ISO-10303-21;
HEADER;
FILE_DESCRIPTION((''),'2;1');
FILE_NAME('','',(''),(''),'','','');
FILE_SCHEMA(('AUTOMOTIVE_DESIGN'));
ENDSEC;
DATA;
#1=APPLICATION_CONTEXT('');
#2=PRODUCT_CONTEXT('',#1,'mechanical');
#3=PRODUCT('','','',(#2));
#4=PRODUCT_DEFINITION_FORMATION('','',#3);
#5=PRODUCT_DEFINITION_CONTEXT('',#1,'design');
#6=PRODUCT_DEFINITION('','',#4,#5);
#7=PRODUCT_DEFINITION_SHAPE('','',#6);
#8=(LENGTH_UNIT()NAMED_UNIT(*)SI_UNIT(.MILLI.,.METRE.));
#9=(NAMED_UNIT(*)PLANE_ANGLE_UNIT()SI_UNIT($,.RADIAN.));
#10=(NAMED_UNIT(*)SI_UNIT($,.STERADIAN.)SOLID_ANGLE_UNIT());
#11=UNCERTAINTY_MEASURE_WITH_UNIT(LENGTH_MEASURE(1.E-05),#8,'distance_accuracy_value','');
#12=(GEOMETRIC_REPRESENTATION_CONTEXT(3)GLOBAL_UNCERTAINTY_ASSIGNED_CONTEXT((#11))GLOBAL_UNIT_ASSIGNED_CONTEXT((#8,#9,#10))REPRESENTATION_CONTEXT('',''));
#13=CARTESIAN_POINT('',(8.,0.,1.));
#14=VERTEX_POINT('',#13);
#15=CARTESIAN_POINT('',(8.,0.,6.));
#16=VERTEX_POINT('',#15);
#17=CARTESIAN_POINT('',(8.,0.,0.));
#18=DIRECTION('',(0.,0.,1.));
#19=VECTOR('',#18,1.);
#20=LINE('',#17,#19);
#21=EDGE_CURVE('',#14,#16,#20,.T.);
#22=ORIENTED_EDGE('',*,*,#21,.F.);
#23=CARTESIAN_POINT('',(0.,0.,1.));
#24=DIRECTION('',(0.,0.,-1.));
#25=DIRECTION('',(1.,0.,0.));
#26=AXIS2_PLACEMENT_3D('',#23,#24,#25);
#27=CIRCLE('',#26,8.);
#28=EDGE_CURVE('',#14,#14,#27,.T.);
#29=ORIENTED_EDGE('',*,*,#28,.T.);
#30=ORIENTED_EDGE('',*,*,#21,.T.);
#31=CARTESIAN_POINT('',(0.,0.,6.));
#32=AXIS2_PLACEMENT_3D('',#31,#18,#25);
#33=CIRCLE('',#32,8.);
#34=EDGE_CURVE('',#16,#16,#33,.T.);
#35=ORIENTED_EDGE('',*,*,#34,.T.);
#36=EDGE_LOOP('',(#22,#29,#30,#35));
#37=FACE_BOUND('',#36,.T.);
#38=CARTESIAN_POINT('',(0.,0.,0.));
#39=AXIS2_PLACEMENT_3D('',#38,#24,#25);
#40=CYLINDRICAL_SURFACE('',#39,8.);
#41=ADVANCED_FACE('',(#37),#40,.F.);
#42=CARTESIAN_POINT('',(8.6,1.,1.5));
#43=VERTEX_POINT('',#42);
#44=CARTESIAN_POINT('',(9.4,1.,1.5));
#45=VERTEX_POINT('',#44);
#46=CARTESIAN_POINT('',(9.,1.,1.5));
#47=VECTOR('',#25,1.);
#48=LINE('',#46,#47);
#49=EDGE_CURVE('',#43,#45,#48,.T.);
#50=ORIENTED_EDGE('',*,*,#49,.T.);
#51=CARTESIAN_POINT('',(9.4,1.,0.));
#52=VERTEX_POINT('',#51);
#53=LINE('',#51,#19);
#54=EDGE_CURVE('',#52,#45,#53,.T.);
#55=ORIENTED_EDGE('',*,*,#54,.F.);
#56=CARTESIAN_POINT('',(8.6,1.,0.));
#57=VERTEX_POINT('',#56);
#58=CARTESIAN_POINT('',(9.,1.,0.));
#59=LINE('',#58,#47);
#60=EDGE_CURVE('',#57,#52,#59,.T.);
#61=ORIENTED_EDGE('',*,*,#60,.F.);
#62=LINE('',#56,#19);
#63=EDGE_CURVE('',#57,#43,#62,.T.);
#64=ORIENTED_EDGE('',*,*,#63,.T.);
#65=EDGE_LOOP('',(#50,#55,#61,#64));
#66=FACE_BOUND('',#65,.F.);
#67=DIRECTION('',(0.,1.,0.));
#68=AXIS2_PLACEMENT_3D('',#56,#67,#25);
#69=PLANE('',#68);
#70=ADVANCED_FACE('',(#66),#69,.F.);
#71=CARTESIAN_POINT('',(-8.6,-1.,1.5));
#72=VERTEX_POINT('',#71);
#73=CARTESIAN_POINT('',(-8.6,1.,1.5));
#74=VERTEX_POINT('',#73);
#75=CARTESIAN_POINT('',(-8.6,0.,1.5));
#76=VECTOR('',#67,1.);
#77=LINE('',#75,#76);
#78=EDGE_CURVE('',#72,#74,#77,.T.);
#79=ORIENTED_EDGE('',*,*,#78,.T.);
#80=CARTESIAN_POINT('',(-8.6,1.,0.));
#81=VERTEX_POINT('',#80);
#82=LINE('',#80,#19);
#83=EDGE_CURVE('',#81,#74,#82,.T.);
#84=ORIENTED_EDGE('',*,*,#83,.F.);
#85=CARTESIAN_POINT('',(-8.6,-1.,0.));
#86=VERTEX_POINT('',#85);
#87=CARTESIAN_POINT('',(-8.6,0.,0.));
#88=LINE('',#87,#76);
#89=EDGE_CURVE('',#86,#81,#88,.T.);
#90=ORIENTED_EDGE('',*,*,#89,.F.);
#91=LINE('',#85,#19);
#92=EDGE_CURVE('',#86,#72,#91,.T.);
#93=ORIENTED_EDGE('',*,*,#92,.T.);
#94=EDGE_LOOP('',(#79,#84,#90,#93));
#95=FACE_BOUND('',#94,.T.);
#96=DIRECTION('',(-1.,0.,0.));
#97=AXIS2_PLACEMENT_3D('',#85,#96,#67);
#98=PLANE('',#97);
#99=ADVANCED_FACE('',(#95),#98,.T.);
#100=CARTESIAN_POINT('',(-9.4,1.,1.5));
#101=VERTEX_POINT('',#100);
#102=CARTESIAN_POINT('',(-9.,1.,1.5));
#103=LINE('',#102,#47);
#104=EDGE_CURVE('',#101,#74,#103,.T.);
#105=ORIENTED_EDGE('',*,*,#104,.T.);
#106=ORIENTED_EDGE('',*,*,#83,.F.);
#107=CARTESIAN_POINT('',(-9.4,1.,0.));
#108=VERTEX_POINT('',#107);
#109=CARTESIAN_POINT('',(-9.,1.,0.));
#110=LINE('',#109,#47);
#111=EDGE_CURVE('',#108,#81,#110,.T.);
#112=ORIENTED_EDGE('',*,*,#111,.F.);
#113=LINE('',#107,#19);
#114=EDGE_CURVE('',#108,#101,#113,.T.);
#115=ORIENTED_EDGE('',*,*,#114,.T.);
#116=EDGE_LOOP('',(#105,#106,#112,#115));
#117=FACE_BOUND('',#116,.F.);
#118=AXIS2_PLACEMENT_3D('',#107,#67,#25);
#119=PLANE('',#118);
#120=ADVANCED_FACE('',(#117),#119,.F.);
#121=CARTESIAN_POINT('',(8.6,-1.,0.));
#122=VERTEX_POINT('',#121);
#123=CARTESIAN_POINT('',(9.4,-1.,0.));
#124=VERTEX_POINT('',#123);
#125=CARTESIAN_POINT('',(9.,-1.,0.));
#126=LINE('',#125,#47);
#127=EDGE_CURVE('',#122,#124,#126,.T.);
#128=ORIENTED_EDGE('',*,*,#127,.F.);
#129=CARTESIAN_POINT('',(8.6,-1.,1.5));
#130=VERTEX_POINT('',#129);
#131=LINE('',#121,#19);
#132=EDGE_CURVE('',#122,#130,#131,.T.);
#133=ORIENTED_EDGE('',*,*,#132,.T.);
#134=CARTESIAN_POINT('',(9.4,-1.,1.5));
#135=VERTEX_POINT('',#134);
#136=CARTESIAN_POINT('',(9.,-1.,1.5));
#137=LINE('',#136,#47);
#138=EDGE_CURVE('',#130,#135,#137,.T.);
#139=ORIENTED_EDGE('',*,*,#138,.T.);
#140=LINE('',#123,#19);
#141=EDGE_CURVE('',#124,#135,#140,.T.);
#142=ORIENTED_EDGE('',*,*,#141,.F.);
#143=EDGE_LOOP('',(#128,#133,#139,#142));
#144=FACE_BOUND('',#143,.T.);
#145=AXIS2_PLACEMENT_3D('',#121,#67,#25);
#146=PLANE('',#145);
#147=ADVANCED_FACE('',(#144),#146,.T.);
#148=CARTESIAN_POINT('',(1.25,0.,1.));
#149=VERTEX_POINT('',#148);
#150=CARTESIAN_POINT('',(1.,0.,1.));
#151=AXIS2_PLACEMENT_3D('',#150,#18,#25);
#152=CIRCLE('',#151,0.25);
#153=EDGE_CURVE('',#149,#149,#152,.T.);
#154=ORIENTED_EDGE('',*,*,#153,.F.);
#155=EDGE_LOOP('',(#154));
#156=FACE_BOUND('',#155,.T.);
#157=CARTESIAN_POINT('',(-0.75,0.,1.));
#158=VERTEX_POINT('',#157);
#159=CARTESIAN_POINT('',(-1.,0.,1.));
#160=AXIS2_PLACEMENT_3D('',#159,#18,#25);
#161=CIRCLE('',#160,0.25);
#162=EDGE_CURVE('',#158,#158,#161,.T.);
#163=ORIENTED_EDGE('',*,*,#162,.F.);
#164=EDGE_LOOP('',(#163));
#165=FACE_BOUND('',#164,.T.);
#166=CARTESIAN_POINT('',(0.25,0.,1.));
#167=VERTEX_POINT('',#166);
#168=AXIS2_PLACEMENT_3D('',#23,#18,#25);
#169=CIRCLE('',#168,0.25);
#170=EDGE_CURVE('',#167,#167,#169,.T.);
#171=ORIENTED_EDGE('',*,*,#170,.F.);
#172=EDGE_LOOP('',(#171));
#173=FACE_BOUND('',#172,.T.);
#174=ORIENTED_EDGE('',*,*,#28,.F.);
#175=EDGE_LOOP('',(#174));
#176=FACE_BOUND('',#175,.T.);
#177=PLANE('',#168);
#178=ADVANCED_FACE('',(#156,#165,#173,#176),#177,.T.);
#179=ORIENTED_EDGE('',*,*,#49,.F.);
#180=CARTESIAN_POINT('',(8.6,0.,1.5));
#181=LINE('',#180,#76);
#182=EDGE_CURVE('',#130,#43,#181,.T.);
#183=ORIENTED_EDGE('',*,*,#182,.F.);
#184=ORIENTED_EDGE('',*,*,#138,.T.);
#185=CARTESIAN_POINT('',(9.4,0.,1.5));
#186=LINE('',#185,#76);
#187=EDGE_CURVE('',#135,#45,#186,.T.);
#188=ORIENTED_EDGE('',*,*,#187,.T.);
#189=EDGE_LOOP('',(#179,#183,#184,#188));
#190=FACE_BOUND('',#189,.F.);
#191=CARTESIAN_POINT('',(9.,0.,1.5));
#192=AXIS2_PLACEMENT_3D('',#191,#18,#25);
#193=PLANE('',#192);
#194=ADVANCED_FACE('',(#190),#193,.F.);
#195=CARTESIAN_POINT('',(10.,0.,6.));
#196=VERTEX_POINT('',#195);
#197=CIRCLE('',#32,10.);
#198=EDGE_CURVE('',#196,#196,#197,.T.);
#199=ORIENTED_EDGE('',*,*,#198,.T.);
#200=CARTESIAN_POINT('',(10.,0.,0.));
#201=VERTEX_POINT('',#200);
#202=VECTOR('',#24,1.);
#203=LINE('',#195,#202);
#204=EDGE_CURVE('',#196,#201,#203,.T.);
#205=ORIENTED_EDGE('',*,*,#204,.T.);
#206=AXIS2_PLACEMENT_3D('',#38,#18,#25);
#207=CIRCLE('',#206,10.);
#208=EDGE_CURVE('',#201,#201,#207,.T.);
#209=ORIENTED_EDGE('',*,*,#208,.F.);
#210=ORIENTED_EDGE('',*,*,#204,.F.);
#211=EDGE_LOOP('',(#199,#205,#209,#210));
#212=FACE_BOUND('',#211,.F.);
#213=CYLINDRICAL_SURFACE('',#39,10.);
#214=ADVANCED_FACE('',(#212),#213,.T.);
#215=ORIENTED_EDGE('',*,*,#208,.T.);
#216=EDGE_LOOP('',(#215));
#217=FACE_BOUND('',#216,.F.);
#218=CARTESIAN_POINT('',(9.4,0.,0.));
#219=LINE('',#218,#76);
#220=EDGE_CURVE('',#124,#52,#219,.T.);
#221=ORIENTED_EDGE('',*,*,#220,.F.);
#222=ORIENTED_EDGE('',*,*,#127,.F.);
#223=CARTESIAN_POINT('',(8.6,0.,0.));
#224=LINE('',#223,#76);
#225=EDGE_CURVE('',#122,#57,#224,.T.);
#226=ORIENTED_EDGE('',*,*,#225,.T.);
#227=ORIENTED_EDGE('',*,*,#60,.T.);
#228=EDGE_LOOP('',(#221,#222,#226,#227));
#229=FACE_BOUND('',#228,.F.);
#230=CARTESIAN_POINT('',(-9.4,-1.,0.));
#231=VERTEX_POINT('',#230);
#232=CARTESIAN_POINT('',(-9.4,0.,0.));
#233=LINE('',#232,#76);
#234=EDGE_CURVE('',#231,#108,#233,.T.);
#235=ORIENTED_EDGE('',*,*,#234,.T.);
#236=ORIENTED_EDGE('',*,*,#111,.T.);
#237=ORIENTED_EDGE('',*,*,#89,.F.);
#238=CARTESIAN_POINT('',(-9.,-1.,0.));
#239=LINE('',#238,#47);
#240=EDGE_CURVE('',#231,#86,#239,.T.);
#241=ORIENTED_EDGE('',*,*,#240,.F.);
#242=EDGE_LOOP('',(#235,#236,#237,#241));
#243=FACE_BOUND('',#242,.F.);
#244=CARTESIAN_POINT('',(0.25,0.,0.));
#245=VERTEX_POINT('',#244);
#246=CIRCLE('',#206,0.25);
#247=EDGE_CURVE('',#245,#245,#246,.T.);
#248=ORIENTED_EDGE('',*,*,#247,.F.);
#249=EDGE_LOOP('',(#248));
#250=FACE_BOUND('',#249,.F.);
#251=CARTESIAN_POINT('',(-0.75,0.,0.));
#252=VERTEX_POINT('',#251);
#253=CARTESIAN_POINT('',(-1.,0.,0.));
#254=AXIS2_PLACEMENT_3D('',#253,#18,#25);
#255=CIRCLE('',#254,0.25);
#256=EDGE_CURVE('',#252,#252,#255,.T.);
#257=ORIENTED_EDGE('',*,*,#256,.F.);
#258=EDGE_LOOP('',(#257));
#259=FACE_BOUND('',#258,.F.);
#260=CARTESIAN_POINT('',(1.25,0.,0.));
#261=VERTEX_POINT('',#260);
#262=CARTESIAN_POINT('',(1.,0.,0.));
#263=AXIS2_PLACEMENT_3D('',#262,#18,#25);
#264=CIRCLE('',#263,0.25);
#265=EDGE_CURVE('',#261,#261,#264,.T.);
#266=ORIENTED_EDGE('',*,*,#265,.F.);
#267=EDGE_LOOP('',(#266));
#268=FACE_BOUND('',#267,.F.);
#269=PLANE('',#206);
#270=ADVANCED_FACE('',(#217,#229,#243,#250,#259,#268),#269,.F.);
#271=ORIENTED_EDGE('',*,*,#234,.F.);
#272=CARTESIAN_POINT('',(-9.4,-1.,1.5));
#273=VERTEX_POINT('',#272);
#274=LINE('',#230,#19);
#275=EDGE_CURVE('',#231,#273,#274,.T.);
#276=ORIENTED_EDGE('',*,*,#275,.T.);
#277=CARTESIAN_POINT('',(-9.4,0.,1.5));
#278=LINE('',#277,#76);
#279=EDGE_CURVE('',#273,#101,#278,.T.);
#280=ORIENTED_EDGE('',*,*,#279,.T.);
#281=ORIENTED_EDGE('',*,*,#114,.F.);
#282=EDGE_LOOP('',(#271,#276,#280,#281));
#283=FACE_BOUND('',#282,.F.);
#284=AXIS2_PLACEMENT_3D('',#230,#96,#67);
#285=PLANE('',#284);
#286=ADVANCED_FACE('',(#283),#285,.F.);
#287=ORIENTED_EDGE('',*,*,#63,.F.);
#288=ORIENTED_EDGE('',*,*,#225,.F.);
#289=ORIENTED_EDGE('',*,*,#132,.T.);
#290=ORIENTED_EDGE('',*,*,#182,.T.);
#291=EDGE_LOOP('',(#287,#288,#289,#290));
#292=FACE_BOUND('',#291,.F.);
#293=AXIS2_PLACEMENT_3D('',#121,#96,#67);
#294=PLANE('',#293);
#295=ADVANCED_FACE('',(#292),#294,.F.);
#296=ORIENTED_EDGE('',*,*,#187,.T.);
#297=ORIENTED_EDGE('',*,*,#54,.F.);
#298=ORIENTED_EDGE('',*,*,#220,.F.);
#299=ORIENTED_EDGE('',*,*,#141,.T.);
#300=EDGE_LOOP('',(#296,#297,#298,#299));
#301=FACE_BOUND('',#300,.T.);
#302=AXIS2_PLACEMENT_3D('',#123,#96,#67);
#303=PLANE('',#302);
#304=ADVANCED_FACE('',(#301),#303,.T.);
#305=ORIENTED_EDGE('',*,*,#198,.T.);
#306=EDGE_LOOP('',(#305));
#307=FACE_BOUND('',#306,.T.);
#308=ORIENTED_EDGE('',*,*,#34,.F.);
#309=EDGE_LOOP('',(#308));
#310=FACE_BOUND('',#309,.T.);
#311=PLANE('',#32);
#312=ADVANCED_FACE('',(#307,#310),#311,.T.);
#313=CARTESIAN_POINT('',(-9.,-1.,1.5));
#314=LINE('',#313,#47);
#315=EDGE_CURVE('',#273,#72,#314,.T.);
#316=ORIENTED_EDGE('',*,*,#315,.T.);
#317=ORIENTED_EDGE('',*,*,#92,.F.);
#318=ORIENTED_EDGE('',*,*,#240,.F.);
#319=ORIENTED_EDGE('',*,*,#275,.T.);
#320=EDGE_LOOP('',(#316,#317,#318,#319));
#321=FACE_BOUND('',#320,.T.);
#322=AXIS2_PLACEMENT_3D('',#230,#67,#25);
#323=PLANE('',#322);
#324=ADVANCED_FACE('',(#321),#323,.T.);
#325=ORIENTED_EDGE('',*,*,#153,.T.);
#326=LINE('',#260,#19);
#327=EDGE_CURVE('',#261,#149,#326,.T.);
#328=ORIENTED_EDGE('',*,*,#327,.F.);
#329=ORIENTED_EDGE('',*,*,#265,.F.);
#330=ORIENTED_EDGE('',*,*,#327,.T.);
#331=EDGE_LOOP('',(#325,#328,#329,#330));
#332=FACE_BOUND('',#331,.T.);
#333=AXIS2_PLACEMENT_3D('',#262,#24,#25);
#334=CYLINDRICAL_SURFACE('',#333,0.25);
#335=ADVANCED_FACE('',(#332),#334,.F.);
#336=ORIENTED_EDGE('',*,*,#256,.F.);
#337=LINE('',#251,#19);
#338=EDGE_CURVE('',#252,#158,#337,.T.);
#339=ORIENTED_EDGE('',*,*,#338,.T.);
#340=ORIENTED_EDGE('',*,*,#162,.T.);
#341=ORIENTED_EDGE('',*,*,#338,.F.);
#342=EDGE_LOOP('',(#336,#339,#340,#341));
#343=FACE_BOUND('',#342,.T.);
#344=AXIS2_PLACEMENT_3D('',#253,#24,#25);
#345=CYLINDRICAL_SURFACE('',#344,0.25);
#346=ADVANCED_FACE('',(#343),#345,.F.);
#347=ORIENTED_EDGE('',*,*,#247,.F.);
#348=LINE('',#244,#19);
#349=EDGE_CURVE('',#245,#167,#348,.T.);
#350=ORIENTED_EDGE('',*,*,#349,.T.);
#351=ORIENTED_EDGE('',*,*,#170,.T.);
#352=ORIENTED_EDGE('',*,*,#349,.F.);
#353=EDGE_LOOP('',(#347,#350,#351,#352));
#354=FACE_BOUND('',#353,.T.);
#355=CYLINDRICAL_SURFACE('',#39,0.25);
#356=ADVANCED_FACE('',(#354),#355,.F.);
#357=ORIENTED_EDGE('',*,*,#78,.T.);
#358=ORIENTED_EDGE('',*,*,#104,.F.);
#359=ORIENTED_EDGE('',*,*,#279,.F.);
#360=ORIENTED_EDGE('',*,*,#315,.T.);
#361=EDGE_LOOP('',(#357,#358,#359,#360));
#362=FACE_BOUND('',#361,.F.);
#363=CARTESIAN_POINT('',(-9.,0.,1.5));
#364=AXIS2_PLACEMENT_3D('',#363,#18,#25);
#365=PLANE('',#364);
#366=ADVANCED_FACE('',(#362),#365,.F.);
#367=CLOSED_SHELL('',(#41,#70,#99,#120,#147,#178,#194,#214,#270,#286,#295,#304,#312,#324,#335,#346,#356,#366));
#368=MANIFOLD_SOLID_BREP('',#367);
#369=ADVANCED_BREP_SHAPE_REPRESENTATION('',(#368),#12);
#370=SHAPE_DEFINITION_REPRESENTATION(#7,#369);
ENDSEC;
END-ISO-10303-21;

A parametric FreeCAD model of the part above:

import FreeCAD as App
import Part
import Sketcher
Q = App.Units.Quantity


def add_polygon(sketch, points):
    """Adds a closed chain of lines whose ends are joined by coincident constraints."""
    first, n = sketch.GeometryCount, len(points)
    for a, b in zip(points, points[1:] + points[:1]):
        sketch.addGeometry(Part.LineSegment(App.Vector(*a, 0), App.Vector(*b, 0)), False)
    for i in range(n):
        sketch.addConstraint(Sketcher.Constraint("Coincident", first + i, 2, first + (i + 1) % n, 1))

doc = App.newDocument("Part")
params = doc.addObject("Spreadsheet::Sheet", "Params")
for row, (alias, value) in enumerate([
    ("sketch1_diameter", "20 mm"),
    ("sketch1_diameter2", "16 mm"),
    ("pad1_length", "6 mm"),
    ("sketch2_diameter", "20 mm"),
    ("sketch2_diameter2", "0.5 mm"),
    ("sketch2_height", "2 mm"),
    ("sketch2_width", "0.8 mm"),
    ("pad2_length", "1 mm"),
    ("sketch3_height", "2 mm"),
    ("sketch3_width", "0.8 mm"),
    ("pocket1_length", "1.5 mm"),
], start=1):
    params.set(f"A{row}", alias)
    params.set(f"B{row}", "=" + value)
    params.setAlias(f"B{row}", alias)

body = doc.addObject("PartDesign::Body", "Body")

sketch1 = body.newObject("Sketcher::SketchObject", "Sketch")
sketch1.AttachmentSupport = (doc.getObject("XY_Plane"), [""])
sketch1.MapMode = "FlatFace"
sketch1.addGeometry(Part.Circle(App.Vector(0, 0, 0), App.Vector(0, 0, 1), 10), False)
sketch1.addGeometry(Part.Circle(App.Vector(0, 0, 0), App.Vector(0, 0, 1), 8), False)
sketch1.addConstraint(Sketcher.Constraint("Coincident", 0, 3, -1, 1))
sketch1.addConstraint(Sketcher.Constraint("Coincident", 1, 3, -1, 1))
sketch1.addConstraint(Sketcher.Constraint("Diameter", 0, Q("20 mm")))
sketch1.addConstraint(Sketcher.Constraint("Diameter", 1, Q("16 mm")))
sketch1.setExpression("Constraints[2]", "Params.sketch1_diameter")
sketch1.setExpression("Constraints[3]", "Params.sketch1_diameter2")
pad1 = body.newObject("PartDesign::Pad", "Pad")
pad1.Profile = sketch1
pad1.setExpression("Length", "Params.pad1_length")

sketch2 = body.newObject("Sketcher::SketchObject", "Sketch001")
sketch2.AttachmentSupport = (doc.getObject("XY_Plane"), [""])
sketch2.MapMode = "FlatFace"
sketch2.addGeometry(Part.Circle(App.Vector(0, 0, 0), App.Vector(0, 0, 1), 10), False)
add_polygon(sketch2, [(-8.6, -1), (-9.4, -1), (-9.4, 1), (-8.6, 1)])
sketch2.addGeometry(Part.Circle(App.Vector(-1, 0, 0), App.Vector(0, 0, 1), 0.25), False)
sketch2.addGeometry(Part.Circle(App.Vector(0, 0, 0), App.Vector(0, 0, 1), 0.25), False)
sketch2.addGeometry(Part.Circle(App.Vector(1, 0, 0), App.Vector(0, 0, 1), 0.25), False)
add_polygon(sketch2, [(9.4, -1), (8.6, -1), (8.6, 1), (9.4, 1)])
sketch2.addConstraint(Sketcher.Constraint("Horizontal", 1))
sketch2.addConstraint(Sketcher.Constraint("Vertical", 2))
sketch2.addConstraint(Sketcher.Constraint("Horizontal", 3))
sketch2.addConstraint(Sketcher.Constraint("Vertical", 4))
sketch2.addConstraint(Sketcher.Constraint("Horizontal", 8))
sketch2.addConstraint(Sketcher.Constraint("Vertical", 9))
sketch2.addConstraint(Sketcher.Constraint("Horizontal", 10))
sketch2.addConstraint(Sketcher.Constraint("Vertical", 11))
sketch2.addConstraint(Sketcher.Constraint("Coincident", 0, 3, -1, 1))
sketch2.addConstraint(Sketcher.Constraint("Coincident", 6, 3, -1, 1))
sketch2.addConstraint(Sketcher.Constraint("Equal", 5, 6))
sketch2.addConstraint(Sketcher.Constraint("Equal", 6, 7))
sketch2.addConstraint(Sketcher.Constraint("Symmetric", 5, 3, 7, 3, -1, 1))
sketch2.addConstraint(Sketcher.Constraint("Symmetric", 3, 2, 8, 2, -1, 1))
sketch2.addConstraint(Sketcher.Constraint("Symmetric", 1, 2, 10, 2, -1, 1))
sketch2.addConstraint(Sketcher.Constraint("PointOnObject", 5, 3, -1))
sketch2.addConstraint(Sketcher.Constraint("Horizontal", 4, 2, 8, 2))
sketch2.addConstraint(Sketcher.Constraint("Diameter", 0, Q("20 mm")))
sketch2.addConstraint(Sketcher.Constraint("Diameter", 5, Q("0.5 mm")))
sketch2.addConstraint(Sketcher.Constraint("DistanceY", 2, 1, 2, 2, Q("2 mm")))
sketch2.addConstraint(Sketcher.Constraint("DistanceX", 1, 2, 1, 1, Q("0.8 mm")))
sketch2.addConstraint(Sketcher.Constraint("DistanceX", 5, 3, -1, 1, Q("1 mm")))
sketch2.addConstraint(Sketcher.Constraint("DistanceX", 1, 2, -1, 1, Q("9.4 mm")))
sketch2.setExpression("Constraints[25]", "Params.sketch2_diameter")
sketch2.setExpression("Constraints[26]", "Params.sketch2_diameter2")
sketch2.setExpression("Constraints[27]", "Params.sketch2_height")
sketch2.setExpression("Constraints[28]", "Params.sketch2_width")
pad2 = body.newObject("PartDesign::Pad", "Pad001")
pad2.Profile = sketch2
pad2.setExpression("Length", "Params.pad2_length")

sketch3 = body.newObject("Sketcher::SketchObject", "Sketch002")
sketch3.AttachmentSupport = (doc.getObject("XY_Plane"), [""])
sketch3.MapMode = "FlatFace"
add_polygon(sketch3, [(8.6, 1), (8.6, -1), (9.4, -1), (9.4, 1)])
add_polygon(sketch3, [(-9.4, 1), (-9.4, -1), (-8.6, -1), (-8.6, 1)])
sketch3.addConstraint(Sketcher.Constraint("Vertical", 0))
sketch3.addConstraint(Sketcher.Constraint("Horizontal", 1))
sketch3.addConstraint(Sketcher.Constraint("Vertical", 2))
sketch3.addConstraint(Sketcher.Constraint("Horizontal", 3))
sketch3.addConstraint(Sketcher.Constraint("Vertical", 4))
sketch3.addConstraint(Sketcher.Constraint("Horizontal", 5))
sketch3.addConstraint(Sketcher.Constraint("Vertical", 6))
sketch3.addConstraint(Sketcher.Constraint("Horizontal", 7))
sketch3.addConstraint(Sketcher.Constraint("Symmetric", 2, 2, 4, 2, -1, 1))
sketch3.addConstraint(Sketcher.Constraint("Symmetric", 0, 2, 6, 2, -1, 1))
sketch3.addConstraint(Sketcher.Constraint("Horizontal", 1, 2, 4, 2))
sketch3.addConstraint(Sketcher.Constraint("DistanceY", 0, 2, 0, 1, Q("2 mm")))
sketch3.addConstraint(Sketcher.Constraint("DistanceX", 1, 1, 1, 2, Q("0.8 mm")))
sketch3.addConstraint(Sketcher.Constraint("DistanceX", 4, 2, 0, 2, Q("18 mm")))
sketch3.setExpression("Constraints[19]", "Params.sketch3_height")
sketch3.setExpression("Constraints[20]", "Params.sketch3_width")
pocket1 = body.newObject("PartDesign::Pocket", "Pocket")
pocket1.Profile = sketch3
pocket1.setExpression("Length", "Params.pocket1_length")
pocket1.Reversed = True

doc.recompute()
